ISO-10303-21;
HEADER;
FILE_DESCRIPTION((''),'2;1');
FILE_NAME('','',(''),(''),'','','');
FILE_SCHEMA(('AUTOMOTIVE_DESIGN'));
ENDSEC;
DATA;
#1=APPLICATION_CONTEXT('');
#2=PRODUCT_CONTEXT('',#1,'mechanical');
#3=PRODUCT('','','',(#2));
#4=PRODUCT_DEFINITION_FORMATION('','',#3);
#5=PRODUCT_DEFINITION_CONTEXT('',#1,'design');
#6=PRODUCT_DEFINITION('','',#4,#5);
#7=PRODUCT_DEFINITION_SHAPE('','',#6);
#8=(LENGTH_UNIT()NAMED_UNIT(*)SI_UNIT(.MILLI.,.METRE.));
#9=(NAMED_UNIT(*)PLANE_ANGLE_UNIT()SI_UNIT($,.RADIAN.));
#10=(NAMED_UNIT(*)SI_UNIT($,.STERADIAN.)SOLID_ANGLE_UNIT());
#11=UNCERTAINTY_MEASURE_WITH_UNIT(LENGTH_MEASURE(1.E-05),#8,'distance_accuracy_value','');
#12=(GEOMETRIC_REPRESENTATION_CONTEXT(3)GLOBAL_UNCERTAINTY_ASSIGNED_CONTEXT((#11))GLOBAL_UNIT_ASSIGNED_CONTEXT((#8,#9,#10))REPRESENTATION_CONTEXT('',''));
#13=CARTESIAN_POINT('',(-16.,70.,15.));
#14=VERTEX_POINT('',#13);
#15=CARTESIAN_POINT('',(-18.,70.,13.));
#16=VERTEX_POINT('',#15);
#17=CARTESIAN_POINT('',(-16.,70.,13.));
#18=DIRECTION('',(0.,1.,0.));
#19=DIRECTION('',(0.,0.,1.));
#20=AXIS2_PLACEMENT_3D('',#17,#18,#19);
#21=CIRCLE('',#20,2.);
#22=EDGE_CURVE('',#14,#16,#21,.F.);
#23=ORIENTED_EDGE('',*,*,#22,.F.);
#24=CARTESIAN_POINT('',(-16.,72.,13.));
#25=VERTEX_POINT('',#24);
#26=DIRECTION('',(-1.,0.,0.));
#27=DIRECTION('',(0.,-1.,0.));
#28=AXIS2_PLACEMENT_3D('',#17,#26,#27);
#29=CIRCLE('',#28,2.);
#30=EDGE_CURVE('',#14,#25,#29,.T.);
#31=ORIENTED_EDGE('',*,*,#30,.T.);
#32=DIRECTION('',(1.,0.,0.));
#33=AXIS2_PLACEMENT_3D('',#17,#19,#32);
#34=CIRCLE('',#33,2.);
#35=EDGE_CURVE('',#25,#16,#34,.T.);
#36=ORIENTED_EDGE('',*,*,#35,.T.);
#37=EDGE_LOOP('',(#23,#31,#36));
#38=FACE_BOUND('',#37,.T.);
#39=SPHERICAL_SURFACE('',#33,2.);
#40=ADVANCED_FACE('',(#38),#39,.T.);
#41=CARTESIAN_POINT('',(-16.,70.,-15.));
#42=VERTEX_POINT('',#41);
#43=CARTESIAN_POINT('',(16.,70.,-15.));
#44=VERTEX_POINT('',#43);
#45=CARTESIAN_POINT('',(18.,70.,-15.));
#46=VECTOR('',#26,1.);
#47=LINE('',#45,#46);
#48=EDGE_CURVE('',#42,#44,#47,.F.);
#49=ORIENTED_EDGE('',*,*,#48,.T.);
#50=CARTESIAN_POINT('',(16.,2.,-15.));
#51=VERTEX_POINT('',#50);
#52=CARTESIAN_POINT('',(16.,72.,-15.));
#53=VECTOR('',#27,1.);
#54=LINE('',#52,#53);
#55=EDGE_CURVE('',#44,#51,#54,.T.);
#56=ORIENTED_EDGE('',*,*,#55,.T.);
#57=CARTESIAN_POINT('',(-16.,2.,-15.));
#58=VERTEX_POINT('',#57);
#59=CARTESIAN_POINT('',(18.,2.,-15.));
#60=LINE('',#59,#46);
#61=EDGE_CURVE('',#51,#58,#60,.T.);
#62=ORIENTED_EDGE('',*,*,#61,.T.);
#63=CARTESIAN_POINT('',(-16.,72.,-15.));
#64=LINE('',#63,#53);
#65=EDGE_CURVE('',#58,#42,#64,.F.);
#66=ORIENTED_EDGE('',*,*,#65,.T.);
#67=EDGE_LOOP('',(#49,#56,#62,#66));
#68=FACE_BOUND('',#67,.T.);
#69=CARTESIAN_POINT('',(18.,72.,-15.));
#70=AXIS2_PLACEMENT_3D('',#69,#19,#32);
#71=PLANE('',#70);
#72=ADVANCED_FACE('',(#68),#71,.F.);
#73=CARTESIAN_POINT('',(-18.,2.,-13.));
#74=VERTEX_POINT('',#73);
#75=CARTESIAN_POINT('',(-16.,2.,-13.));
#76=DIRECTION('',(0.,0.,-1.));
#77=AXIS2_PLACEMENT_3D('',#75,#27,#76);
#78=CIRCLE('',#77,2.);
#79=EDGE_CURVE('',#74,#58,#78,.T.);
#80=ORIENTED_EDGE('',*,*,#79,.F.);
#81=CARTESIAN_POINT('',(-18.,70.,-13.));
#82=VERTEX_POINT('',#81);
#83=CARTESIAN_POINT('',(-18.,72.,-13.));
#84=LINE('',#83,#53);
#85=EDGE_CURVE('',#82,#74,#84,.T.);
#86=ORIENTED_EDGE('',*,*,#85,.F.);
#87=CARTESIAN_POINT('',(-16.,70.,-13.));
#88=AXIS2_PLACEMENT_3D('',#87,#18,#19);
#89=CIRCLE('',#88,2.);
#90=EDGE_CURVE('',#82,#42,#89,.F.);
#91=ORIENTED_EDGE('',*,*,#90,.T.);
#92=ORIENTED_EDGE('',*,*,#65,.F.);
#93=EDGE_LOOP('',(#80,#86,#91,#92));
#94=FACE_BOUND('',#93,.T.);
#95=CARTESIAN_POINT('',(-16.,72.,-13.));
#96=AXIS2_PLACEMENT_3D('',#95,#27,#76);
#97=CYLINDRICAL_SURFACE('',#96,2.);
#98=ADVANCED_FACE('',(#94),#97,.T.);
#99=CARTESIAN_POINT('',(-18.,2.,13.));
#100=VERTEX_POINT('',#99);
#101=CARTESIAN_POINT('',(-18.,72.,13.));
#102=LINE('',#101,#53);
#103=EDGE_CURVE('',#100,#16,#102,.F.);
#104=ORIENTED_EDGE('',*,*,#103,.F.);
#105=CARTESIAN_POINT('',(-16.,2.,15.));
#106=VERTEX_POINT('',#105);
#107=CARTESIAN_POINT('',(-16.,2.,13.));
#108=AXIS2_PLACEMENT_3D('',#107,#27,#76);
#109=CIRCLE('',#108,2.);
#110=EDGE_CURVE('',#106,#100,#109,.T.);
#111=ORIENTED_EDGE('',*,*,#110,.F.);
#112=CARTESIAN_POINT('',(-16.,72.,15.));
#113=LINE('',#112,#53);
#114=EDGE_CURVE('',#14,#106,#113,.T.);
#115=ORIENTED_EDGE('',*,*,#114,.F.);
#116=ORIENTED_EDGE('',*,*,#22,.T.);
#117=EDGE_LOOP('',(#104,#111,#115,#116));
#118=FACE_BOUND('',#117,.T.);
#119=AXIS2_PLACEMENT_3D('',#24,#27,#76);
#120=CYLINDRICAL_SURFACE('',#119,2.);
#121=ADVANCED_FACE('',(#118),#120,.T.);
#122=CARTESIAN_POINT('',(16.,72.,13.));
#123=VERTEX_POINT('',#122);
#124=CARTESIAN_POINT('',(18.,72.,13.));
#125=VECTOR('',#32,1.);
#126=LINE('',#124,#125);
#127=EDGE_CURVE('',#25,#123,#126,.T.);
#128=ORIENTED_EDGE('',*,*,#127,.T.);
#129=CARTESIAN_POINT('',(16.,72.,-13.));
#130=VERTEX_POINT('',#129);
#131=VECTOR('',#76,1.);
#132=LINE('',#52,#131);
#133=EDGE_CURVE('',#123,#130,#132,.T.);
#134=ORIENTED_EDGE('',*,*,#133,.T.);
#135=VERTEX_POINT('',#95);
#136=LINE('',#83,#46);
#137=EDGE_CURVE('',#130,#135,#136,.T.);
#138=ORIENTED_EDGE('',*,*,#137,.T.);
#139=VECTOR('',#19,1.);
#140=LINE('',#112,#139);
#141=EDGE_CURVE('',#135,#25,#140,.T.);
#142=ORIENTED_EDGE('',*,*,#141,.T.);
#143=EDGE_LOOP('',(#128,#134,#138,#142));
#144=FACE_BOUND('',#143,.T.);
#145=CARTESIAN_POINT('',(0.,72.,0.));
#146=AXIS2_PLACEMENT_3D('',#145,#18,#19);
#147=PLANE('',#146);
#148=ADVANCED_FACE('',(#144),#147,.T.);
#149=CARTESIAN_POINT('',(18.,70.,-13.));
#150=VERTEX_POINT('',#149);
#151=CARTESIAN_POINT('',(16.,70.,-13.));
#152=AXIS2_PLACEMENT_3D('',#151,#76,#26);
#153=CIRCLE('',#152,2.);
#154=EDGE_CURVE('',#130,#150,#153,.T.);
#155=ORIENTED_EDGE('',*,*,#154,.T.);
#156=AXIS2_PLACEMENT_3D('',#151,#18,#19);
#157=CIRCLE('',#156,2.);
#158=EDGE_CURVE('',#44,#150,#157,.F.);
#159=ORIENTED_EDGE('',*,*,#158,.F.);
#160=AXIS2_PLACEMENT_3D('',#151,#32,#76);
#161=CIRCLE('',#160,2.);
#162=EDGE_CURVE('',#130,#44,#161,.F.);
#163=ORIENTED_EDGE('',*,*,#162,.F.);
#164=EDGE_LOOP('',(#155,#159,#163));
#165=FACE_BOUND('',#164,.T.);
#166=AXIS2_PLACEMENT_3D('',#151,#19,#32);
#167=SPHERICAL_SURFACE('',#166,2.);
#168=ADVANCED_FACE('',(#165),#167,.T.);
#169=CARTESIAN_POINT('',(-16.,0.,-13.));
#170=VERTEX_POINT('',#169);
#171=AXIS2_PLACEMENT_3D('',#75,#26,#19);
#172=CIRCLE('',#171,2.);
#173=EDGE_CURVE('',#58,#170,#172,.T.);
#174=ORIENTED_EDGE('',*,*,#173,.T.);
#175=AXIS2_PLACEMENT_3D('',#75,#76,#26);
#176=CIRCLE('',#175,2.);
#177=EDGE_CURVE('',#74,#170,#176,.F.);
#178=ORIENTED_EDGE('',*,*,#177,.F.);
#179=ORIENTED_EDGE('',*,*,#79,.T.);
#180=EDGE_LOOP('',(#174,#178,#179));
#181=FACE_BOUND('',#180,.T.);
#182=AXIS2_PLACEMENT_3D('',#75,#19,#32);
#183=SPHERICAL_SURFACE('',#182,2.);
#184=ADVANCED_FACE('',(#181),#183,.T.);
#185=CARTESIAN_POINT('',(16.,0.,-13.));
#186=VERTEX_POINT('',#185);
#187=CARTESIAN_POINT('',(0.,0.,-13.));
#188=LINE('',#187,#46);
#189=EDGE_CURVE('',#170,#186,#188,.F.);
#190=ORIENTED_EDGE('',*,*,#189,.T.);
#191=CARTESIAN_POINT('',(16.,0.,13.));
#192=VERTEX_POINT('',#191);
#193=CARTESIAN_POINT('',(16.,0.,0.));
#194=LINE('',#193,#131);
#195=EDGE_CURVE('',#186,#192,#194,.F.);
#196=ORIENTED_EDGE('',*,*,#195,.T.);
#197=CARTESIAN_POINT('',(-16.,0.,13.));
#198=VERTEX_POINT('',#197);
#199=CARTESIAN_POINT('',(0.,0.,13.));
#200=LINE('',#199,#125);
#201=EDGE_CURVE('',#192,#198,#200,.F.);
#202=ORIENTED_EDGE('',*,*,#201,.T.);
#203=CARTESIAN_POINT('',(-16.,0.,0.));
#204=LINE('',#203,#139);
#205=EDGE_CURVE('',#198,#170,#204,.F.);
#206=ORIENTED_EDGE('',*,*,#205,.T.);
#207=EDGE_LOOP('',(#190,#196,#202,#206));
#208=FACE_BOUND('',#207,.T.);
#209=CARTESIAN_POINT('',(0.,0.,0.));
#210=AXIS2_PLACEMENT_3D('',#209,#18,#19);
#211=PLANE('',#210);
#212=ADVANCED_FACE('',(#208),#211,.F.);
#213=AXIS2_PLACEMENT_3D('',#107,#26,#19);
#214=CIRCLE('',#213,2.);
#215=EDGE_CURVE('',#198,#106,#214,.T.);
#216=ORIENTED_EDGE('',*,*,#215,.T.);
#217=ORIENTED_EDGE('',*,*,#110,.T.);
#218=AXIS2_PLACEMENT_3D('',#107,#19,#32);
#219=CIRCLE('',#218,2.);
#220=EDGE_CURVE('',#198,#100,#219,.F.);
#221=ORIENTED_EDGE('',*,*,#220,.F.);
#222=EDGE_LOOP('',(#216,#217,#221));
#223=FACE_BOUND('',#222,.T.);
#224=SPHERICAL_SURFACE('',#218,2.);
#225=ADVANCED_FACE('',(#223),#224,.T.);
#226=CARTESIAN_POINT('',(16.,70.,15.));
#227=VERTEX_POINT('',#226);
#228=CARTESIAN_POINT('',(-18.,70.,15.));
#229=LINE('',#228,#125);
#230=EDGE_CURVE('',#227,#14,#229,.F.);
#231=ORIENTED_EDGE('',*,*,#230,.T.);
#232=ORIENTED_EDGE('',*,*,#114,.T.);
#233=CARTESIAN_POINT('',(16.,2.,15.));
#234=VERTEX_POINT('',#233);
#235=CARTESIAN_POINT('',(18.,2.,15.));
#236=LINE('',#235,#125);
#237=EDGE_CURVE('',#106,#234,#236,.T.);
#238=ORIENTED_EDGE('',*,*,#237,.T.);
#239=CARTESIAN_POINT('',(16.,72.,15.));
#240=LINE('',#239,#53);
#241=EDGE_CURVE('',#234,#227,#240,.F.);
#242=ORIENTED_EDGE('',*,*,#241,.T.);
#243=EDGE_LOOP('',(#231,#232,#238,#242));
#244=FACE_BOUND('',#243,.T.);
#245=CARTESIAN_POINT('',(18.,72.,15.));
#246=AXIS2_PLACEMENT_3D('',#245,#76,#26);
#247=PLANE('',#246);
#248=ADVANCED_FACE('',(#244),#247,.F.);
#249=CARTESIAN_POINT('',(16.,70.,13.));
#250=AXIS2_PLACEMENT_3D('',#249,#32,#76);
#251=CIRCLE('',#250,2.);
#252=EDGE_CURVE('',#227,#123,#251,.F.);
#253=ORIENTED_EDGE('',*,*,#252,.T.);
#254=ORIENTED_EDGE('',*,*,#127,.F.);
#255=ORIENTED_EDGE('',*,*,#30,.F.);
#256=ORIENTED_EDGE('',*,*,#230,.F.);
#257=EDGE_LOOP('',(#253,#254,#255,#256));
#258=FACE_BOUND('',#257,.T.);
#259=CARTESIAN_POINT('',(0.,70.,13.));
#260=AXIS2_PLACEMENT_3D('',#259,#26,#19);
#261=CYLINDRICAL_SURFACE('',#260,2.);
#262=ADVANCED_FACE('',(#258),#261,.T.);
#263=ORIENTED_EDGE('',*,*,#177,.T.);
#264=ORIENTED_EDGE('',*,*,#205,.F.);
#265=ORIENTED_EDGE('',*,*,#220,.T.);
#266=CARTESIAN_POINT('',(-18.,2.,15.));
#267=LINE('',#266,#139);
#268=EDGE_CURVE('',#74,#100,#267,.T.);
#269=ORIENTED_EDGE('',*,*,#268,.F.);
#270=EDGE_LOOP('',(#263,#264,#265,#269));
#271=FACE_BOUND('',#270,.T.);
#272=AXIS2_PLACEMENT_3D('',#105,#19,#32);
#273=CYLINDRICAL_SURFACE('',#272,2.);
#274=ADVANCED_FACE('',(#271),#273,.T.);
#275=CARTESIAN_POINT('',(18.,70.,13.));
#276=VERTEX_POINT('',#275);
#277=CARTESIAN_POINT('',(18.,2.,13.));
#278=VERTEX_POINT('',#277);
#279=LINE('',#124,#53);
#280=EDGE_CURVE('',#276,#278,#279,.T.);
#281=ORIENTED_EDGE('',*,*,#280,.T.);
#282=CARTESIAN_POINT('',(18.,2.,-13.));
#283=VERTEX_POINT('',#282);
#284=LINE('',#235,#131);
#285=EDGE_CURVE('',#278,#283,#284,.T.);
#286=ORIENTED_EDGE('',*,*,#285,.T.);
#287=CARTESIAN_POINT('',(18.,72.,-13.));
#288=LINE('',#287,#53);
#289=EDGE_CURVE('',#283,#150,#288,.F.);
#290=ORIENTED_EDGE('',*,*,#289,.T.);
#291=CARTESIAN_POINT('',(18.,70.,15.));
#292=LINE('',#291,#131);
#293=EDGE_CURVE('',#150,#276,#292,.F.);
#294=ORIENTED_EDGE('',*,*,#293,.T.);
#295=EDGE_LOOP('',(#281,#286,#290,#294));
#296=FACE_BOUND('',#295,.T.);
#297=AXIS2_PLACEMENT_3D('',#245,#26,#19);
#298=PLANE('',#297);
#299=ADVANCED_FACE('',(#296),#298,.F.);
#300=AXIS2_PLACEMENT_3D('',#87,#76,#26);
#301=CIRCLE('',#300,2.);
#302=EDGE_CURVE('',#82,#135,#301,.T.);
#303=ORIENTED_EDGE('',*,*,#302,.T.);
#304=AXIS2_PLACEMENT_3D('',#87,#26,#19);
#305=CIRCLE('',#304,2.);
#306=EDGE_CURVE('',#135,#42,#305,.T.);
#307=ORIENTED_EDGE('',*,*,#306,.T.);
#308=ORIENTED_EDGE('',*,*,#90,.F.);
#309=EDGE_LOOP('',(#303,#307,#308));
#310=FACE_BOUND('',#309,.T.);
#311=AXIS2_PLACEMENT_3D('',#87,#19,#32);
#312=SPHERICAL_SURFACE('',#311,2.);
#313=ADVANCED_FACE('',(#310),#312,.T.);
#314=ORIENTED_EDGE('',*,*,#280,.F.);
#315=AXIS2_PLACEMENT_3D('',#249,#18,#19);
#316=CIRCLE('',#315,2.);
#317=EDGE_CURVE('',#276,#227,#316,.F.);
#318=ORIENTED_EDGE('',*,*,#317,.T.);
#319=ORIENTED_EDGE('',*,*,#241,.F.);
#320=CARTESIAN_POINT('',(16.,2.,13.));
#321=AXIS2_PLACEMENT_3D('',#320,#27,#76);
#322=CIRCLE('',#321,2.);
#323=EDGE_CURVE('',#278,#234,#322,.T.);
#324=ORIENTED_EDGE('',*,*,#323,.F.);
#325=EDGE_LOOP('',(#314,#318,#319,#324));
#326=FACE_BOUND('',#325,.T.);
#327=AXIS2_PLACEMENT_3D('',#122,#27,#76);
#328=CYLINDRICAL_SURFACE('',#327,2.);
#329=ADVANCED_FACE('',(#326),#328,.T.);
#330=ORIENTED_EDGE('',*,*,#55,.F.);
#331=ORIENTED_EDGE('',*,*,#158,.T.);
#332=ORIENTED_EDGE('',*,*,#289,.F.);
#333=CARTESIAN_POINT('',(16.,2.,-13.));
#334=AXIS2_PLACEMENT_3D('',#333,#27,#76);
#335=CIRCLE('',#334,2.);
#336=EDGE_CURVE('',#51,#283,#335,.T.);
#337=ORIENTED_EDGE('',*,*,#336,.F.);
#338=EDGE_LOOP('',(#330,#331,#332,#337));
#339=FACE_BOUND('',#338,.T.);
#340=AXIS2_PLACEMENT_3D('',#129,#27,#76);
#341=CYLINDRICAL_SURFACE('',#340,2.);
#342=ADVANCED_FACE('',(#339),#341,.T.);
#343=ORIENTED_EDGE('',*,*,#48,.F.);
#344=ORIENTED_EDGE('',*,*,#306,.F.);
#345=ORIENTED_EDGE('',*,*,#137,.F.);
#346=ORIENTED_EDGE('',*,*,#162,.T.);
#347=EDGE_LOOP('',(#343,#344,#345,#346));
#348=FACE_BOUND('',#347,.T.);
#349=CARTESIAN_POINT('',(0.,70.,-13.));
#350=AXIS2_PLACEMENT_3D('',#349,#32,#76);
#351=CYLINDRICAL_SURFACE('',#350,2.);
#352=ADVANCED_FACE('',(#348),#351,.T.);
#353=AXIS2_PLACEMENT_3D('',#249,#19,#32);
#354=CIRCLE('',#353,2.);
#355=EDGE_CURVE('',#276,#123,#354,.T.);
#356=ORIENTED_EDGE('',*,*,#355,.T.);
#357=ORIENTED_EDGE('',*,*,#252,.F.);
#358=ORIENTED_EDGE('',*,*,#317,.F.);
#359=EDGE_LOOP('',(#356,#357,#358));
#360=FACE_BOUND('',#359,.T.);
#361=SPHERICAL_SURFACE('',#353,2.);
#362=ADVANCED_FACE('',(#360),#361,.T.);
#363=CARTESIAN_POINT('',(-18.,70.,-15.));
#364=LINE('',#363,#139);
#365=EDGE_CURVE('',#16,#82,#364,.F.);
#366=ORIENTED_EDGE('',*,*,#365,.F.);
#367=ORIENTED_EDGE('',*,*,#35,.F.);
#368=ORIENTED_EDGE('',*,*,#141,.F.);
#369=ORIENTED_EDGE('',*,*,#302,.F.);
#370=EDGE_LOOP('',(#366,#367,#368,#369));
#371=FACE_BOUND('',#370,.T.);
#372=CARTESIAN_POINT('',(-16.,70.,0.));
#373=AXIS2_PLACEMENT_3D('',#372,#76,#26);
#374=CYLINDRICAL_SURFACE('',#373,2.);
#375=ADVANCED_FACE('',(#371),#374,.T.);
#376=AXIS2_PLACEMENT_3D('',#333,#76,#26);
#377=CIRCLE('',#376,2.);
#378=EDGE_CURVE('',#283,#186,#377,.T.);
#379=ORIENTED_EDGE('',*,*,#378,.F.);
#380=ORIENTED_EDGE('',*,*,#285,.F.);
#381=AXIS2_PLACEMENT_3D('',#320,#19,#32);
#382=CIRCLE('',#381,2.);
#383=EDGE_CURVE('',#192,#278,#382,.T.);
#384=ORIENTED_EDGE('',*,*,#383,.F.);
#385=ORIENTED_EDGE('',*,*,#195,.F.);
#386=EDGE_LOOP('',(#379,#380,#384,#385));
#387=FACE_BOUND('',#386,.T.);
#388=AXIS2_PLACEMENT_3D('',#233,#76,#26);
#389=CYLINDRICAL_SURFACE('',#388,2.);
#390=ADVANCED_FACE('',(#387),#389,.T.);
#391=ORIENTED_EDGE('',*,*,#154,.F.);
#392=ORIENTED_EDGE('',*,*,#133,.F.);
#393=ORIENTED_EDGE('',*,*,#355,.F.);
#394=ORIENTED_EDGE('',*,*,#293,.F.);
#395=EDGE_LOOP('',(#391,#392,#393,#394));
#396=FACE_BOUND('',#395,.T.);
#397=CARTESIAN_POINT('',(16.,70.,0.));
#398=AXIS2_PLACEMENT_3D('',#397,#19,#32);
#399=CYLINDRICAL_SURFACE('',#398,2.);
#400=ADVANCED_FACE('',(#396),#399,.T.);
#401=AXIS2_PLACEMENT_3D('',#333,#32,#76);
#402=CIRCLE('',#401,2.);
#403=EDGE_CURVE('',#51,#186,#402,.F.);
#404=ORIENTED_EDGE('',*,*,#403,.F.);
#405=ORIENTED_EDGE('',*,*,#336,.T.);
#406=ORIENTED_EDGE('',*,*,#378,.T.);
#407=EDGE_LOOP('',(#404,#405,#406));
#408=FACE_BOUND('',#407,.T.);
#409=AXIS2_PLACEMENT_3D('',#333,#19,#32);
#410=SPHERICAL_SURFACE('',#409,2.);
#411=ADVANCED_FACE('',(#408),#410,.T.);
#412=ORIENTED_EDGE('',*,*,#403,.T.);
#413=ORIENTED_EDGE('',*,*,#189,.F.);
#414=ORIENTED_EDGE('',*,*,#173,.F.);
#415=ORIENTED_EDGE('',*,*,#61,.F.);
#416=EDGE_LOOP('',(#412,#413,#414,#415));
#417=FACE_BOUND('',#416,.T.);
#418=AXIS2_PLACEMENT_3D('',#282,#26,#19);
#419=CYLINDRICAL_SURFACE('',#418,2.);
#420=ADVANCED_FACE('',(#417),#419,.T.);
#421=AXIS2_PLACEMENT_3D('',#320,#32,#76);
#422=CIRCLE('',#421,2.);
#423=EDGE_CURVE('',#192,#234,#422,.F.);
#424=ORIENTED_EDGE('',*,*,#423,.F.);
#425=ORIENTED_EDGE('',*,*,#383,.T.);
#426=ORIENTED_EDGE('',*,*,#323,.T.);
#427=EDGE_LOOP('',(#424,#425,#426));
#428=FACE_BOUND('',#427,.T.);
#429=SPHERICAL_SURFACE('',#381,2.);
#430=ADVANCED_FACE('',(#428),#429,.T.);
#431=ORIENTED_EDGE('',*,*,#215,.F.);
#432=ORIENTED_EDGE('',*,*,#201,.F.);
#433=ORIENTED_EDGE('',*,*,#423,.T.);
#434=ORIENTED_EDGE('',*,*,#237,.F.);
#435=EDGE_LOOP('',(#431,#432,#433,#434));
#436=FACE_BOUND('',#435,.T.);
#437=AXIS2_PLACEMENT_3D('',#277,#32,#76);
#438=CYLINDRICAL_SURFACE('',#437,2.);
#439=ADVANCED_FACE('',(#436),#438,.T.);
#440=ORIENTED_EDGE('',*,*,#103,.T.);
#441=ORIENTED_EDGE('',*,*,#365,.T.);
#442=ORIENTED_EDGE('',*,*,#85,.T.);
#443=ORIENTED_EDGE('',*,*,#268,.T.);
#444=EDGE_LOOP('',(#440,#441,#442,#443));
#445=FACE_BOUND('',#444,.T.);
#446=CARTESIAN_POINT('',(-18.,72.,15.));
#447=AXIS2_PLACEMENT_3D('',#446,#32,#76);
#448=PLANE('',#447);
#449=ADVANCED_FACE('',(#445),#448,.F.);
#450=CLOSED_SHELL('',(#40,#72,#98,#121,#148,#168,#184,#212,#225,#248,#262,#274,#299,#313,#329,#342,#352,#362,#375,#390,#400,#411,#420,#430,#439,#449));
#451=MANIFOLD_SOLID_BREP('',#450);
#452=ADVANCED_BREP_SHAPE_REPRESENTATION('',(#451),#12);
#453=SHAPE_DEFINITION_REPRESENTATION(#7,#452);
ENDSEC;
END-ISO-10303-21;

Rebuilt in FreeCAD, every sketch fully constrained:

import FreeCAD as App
import Part
import Sketcher

V = App.Vector
Q = App.Units.Quantity


def add_polygon(sketch, points):
    """Adds a closed chain of lines whose ends are joined by coincident constraints."""
    first, n = sketch.GeometryCount, len(points)
    for a, b in zip(points, points[1:] + points[:1]):
        sketch.addGeometry(Part.LineSegment(App.Vector(*a, 0), App.Vector(*b, 0)), False)
    for i in range(n):
        sketch.addConstraint(Sketcher.Constraint("Coincident", first + i, 2, first + (i + 1) % n, 1))

doc = App.newDocument("Part")
body = doc.addObject("PartDesign::Body", "Body")

sketch1 = body.newObject("Sketcher::SketchObject", "Sketch")
sketch1.AttachmentSupport = (doc.getObject("XZ_Plane"), [""])
sketch1.MapMode = "FlatFace"
add_polygon(sketch1, [(-18, -15), (-18, 15), (18, 15), (18, -15)])
sketch1.addConstraint([
    Sketcher.Constraint("Vertical", 0),
    Sketcher.Constraint("Horizontal", 1),
    Sketcher.Constraint("Vertical", 2),
    Sketcher.Constraint("Horizontal", 3),
    Sketcher.Constraint("Symmetric", 0, 2, 2, 2, -1, 1),
    Sketcher.Constraint("DistanceX", 1, 1, 1, 2, Q("36 mm")),
    Sketcher.Constraint("DistanceY", 0, 1, 0, 2, Q("30 mm")),
])
pad1 = body.newObject("PartDesign::Pad", "Pad")
pad1.Profile = sketch1
pad1.Length = 72
pad1.Reversed = True
doc.recompute()

fillet = body.newObject("PartDesign::Fillet", "Fillet")
fillet.Base = (pad1, ["Edge1"])
fillet.UseAllEdges = True
fillet.Radius = 2

doc.recompute()
